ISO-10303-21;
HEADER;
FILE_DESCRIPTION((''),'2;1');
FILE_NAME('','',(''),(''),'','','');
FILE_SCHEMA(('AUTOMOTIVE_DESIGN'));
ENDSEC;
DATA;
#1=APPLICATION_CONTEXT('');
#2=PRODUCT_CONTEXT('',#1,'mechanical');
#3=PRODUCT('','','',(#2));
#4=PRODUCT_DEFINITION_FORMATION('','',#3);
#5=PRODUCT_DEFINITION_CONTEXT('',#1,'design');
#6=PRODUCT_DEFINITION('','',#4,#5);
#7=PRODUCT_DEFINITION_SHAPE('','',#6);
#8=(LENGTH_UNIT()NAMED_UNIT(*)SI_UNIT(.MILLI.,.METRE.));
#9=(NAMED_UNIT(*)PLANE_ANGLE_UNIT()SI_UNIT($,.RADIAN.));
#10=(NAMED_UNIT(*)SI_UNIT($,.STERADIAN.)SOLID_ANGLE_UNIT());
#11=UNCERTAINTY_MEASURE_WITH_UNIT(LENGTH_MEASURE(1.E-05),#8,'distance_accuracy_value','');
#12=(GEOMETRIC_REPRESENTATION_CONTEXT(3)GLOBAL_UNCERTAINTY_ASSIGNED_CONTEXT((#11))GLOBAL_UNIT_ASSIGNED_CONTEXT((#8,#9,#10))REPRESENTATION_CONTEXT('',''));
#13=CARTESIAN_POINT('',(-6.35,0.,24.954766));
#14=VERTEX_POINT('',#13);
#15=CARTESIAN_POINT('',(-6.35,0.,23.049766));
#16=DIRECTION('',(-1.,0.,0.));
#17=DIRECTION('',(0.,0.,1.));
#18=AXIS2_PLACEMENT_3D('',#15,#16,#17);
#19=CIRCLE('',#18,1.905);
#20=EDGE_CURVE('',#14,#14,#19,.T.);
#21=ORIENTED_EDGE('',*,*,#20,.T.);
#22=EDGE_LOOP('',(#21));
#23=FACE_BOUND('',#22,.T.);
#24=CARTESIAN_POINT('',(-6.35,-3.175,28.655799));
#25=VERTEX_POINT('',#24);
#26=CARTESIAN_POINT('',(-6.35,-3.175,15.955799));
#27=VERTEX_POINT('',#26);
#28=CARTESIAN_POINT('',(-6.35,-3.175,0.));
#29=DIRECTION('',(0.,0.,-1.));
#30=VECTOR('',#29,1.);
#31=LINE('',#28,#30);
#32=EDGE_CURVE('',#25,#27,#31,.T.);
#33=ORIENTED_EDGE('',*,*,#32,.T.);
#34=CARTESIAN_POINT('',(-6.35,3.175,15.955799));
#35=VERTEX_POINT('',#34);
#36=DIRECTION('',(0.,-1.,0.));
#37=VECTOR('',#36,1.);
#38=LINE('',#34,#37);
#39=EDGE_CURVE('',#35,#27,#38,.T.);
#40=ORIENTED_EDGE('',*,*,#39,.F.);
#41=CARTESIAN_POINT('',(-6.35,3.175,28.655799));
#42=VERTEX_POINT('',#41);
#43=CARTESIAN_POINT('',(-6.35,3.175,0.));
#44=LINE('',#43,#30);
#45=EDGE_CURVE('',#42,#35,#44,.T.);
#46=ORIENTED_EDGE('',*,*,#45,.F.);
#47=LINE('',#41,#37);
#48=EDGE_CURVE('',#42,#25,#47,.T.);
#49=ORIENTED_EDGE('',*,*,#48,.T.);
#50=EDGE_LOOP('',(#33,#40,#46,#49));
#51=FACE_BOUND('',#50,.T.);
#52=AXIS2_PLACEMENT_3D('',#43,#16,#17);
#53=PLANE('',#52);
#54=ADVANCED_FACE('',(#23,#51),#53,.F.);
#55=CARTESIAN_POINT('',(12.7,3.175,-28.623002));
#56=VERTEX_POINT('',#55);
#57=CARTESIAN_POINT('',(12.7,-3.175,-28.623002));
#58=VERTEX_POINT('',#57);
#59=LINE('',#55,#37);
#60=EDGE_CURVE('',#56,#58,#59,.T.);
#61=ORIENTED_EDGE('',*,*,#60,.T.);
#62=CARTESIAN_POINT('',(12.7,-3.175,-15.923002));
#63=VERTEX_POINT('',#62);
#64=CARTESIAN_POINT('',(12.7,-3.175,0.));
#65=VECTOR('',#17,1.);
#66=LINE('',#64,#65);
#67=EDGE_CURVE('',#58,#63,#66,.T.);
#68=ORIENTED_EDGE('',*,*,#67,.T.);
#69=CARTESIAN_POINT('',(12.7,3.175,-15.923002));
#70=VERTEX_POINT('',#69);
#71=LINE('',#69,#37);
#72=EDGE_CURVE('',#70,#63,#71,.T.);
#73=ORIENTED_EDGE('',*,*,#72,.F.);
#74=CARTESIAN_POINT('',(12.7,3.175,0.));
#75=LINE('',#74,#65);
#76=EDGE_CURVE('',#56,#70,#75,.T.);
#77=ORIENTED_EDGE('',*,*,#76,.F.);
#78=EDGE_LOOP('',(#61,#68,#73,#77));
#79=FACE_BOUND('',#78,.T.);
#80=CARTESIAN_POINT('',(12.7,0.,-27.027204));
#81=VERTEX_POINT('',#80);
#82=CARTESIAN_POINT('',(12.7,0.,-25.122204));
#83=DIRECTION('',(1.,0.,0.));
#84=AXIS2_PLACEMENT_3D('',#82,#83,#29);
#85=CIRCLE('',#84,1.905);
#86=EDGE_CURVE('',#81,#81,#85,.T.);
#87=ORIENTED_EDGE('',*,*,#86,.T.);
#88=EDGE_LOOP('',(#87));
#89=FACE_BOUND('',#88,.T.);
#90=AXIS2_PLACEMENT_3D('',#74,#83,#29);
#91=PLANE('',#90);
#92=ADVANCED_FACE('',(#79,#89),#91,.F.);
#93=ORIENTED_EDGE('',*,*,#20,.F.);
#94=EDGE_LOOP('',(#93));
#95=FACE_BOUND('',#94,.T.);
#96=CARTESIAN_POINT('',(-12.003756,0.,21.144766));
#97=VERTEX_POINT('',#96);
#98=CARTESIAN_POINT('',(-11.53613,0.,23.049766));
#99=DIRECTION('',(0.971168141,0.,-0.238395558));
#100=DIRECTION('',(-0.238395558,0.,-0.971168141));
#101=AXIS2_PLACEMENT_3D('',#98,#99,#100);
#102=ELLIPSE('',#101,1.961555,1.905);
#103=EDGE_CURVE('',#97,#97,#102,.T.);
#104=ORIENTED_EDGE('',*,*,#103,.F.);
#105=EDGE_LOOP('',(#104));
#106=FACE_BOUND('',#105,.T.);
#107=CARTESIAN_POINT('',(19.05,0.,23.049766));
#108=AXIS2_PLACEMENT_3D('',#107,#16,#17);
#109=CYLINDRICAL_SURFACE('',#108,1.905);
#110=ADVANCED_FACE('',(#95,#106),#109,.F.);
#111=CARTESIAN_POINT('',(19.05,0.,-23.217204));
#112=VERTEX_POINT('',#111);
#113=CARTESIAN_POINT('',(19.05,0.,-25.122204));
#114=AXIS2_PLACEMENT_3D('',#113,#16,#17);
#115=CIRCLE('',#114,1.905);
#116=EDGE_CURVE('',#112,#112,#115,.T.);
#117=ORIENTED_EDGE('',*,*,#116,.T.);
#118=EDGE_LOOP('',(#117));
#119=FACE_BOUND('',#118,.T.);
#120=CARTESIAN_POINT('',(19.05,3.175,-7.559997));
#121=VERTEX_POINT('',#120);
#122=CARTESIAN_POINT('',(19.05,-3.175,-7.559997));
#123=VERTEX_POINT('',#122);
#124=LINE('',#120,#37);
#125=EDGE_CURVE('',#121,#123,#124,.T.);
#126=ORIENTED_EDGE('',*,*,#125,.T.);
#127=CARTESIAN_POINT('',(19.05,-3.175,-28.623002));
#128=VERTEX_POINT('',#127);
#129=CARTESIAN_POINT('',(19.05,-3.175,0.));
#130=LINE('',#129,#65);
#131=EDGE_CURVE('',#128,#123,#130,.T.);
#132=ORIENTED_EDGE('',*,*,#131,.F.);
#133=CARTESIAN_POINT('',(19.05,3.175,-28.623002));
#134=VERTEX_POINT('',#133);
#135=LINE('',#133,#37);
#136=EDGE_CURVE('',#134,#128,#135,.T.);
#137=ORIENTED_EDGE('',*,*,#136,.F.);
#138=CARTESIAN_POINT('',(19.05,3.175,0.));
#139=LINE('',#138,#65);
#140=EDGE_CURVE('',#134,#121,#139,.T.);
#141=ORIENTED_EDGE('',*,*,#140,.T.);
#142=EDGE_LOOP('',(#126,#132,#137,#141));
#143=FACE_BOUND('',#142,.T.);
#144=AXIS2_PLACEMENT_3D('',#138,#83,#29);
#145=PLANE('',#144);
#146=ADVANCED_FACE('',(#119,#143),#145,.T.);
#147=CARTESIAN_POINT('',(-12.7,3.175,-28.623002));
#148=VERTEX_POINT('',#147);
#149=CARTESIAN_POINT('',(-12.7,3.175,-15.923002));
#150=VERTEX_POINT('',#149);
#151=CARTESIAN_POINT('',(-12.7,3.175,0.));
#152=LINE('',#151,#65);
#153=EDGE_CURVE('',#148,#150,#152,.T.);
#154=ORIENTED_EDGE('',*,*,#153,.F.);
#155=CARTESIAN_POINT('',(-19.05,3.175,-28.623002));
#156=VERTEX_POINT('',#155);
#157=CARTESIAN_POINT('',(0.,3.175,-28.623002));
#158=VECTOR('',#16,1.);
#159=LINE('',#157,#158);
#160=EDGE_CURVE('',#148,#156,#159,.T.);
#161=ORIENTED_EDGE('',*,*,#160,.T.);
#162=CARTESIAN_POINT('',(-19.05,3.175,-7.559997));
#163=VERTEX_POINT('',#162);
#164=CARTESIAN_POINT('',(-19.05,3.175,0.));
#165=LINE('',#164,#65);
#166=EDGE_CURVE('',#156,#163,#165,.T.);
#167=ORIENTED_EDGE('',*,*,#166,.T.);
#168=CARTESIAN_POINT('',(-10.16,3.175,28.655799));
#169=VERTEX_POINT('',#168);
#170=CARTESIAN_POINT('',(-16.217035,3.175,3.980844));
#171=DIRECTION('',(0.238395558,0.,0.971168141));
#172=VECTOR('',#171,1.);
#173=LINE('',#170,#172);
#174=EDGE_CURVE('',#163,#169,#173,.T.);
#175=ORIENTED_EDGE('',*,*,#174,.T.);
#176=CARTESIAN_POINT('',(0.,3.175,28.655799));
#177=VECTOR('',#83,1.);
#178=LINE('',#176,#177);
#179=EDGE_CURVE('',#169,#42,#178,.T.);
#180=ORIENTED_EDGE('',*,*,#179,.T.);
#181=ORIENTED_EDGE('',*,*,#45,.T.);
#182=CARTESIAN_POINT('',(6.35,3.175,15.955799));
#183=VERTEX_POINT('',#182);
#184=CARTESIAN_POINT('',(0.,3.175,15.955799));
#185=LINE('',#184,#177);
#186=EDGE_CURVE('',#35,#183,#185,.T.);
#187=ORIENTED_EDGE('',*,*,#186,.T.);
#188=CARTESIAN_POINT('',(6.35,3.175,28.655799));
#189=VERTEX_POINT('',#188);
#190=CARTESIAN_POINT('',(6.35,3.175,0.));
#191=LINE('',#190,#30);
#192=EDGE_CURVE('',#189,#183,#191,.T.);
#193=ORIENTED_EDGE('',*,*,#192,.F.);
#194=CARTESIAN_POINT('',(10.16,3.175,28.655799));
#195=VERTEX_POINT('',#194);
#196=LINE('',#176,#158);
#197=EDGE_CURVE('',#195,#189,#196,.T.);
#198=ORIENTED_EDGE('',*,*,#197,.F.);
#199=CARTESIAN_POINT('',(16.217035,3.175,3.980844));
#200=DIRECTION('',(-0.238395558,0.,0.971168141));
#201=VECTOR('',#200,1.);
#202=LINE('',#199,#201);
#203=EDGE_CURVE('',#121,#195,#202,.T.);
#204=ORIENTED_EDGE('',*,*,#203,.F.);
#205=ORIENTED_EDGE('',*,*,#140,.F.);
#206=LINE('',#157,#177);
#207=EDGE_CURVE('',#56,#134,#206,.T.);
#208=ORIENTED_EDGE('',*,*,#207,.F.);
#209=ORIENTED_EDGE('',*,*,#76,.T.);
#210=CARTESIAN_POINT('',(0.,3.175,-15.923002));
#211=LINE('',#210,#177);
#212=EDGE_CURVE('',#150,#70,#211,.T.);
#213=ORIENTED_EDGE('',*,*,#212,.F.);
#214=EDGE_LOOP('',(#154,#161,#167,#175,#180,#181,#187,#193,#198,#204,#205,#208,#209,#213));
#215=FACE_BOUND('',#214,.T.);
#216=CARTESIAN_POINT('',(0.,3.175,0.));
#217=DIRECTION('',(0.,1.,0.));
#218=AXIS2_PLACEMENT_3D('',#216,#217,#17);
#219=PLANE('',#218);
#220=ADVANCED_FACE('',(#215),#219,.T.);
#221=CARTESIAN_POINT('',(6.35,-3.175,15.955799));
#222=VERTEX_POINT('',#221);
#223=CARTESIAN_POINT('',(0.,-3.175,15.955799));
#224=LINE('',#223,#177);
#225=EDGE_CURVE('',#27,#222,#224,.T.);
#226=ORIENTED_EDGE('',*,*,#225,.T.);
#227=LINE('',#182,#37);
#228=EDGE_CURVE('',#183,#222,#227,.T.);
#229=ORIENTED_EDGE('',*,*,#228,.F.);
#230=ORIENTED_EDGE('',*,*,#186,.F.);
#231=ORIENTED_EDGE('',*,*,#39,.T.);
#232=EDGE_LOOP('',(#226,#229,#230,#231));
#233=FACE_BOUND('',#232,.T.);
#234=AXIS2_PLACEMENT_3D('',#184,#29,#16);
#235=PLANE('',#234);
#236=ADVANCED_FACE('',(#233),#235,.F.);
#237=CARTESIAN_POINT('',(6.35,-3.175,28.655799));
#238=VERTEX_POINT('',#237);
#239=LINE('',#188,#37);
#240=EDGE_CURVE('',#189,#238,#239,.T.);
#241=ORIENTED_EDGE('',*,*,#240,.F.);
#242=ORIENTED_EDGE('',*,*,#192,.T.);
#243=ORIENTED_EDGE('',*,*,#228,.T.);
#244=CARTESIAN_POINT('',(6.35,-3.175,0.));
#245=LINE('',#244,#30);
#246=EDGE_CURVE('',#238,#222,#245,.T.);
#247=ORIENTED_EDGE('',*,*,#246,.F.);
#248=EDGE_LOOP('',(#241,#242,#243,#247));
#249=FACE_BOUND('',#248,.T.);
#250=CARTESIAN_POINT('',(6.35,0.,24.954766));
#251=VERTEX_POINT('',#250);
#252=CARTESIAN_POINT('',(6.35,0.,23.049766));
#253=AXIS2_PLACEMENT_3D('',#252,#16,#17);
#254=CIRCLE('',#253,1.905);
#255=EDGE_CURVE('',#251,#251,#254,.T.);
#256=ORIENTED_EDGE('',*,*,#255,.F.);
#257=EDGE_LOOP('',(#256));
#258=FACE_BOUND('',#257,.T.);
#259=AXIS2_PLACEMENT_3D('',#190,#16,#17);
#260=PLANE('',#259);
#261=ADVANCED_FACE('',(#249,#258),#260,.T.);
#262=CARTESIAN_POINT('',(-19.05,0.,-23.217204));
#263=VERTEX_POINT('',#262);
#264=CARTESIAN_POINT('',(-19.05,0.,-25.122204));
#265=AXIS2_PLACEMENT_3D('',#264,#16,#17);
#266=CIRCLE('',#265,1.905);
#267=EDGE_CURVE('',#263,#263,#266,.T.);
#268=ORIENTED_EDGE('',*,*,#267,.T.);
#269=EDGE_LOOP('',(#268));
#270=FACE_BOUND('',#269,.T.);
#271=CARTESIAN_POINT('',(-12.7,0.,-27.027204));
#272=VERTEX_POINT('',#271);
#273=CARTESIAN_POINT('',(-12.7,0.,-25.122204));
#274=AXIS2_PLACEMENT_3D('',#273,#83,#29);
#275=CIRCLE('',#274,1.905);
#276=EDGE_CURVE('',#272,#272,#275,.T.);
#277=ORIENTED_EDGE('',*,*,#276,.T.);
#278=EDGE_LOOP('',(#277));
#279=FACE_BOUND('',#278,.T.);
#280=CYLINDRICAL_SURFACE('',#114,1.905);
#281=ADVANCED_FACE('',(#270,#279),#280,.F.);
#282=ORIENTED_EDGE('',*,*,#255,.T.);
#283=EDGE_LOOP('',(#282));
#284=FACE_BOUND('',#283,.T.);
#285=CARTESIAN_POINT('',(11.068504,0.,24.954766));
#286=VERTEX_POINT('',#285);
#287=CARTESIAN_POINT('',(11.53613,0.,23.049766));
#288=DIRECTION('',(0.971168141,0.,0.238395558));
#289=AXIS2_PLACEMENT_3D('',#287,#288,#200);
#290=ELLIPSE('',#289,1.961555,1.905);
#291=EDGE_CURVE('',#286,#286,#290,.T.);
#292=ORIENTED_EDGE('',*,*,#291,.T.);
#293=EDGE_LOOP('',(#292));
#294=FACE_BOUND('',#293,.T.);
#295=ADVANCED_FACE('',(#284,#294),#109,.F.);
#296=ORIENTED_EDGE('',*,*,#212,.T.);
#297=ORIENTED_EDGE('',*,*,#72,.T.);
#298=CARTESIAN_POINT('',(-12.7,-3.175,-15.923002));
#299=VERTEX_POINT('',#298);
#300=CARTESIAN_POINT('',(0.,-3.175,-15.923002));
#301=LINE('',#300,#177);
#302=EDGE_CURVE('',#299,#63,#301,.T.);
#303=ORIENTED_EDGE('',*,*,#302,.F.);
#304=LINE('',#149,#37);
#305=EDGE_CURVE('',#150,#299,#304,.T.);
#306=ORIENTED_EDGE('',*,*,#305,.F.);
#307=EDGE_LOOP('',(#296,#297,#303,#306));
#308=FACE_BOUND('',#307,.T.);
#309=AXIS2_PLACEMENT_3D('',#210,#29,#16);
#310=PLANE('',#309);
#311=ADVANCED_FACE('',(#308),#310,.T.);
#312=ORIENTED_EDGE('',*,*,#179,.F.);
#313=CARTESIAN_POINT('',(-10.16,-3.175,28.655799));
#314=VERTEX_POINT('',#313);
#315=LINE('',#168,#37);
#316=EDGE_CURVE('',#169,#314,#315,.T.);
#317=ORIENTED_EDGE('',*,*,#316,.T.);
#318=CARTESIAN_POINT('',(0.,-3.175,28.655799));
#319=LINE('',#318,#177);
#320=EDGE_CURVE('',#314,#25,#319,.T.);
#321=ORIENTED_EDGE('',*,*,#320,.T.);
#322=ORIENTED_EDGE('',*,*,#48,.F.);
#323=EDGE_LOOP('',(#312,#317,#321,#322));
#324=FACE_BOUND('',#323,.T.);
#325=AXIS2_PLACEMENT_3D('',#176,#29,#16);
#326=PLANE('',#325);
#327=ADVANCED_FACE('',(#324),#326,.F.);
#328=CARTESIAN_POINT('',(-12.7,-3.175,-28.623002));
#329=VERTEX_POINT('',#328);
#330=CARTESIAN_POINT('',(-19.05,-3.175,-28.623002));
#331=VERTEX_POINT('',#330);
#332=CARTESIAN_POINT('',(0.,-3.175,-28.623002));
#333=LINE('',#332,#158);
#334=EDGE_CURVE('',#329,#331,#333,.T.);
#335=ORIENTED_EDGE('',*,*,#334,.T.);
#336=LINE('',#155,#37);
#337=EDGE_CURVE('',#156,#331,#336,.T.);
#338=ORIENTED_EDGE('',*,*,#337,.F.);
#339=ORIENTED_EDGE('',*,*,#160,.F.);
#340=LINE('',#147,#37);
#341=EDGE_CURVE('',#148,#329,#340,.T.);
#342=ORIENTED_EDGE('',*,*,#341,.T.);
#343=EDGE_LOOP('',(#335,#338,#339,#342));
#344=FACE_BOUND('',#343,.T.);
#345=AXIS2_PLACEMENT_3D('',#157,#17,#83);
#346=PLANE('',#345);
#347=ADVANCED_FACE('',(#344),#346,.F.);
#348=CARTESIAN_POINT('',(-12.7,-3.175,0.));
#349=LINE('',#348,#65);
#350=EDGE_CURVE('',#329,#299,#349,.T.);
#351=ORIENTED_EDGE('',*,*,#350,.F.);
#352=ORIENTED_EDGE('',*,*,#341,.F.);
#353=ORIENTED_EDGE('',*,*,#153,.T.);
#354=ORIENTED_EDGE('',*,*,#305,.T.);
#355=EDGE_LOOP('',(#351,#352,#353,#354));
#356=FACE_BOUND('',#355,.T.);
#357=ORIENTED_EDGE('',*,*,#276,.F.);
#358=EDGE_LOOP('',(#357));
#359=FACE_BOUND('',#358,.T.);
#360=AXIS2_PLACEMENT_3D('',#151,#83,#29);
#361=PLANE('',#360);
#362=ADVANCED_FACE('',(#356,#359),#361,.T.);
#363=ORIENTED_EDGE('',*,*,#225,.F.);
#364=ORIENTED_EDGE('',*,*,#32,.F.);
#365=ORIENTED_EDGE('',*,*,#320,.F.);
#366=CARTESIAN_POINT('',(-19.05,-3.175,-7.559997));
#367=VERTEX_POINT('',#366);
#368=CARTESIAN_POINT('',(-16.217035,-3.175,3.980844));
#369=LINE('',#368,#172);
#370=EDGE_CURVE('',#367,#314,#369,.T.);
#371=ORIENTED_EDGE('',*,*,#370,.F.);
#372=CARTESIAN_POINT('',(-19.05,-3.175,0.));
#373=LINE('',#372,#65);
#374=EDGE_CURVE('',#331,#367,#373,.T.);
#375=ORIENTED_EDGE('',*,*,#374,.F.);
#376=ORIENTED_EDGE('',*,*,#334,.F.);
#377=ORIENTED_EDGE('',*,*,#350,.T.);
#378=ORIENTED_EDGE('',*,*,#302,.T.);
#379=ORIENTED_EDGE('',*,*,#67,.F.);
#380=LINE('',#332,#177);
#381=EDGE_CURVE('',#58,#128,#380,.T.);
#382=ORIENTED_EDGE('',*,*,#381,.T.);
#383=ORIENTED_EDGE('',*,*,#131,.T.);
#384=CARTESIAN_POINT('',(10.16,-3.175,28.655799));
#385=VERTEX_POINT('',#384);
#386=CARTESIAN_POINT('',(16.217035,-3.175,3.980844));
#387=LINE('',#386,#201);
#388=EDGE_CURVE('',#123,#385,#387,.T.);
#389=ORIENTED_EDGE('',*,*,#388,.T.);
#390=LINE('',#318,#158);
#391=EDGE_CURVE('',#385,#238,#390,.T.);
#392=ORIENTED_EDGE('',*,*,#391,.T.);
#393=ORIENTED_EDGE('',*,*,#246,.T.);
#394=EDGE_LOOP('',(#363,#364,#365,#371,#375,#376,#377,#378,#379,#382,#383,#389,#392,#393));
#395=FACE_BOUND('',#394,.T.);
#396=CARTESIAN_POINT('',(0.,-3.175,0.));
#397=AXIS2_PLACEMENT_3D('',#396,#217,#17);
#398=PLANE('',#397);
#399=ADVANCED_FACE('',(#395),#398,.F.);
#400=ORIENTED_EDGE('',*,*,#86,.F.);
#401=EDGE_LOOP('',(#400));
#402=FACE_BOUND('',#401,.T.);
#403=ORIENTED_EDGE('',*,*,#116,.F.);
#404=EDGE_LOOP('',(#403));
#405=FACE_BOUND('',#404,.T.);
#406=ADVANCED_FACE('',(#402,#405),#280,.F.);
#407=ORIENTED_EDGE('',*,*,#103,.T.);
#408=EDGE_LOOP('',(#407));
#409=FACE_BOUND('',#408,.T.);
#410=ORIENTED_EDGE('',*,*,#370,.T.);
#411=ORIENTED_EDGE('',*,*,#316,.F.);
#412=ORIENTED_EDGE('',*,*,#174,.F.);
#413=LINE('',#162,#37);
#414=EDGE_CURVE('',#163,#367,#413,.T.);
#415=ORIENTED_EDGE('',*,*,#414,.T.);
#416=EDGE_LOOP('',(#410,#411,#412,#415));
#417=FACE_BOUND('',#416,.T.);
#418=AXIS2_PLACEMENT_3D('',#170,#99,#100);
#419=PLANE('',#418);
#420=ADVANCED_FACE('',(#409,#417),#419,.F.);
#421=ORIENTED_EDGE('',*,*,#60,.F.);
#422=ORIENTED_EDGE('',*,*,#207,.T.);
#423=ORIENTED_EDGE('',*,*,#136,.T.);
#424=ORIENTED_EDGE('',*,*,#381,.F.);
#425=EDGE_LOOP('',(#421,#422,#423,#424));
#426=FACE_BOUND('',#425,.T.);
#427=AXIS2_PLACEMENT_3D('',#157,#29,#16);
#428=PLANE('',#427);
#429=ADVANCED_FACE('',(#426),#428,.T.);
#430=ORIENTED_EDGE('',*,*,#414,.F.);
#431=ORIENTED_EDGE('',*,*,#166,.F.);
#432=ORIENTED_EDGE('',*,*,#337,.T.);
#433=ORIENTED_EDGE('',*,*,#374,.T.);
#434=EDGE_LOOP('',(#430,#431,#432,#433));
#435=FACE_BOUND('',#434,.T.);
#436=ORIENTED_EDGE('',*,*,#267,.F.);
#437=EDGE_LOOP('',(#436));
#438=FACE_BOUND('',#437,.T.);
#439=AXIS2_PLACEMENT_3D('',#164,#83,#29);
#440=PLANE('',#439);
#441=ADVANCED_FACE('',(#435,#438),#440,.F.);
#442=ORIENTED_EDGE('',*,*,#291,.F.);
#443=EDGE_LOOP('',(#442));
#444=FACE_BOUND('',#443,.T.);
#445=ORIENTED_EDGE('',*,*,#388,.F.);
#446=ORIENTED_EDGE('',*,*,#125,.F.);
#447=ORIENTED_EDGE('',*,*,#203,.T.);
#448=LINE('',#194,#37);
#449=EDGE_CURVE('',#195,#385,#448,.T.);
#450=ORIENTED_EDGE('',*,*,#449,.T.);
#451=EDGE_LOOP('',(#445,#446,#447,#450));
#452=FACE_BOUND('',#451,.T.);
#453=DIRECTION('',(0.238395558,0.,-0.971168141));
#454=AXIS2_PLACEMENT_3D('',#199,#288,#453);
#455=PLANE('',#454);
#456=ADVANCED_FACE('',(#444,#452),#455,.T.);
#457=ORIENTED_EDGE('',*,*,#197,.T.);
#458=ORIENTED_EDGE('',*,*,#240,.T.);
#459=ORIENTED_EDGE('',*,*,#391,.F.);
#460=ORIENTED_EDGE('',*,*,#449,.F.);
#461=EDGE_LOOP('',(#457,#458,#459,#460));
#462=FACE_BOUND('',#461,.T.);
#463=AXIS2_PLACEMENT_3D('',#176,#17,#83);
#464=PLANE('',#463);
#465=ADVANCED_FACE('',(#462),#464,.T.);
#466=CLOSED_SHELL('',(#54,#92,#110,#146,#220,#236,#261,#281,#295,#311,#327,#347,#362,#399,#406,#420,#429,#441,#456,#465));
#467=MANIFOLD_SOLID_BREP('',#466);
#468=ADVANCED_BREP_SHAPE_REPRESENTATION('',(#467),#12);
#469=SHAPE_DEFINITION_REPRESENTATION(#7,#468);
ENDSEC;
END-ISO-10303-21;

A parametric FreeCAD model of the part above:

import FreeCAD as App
import Part
import Sketcher
Q = App.Units.Quantity


def add_polygon(sketch, points):
    """Adds a closed chain of lines whose ends are joined by coincident constraints."""
    first, n = sketch.GeometryCount, len(points)
    for a, b in zip(points, points[1:] + points[:1]):
        sketch.addGeometry(Part.LineSegment(App.Vector(*a, 0), App.Vector(*b, 0)), False)
    for i in range(n):
        sketch.addConstraint(Sketcher.Constraint("Coincident", first + i, 2, first + (i + 1) % n, 1))

doc = App.newDocument("Part")
body = doc.addObject("PartDesign::Body", "Body")

sketch1 = body.newObject("Sketcher::SketchObject", "Sketch")
sketch1.AttachmentSupport = (doc.getObject("XZ_Plane"), [""])
sketch1.MapMode = "FlatFace"
add_polygon(sketch1, [(-19.1, -28.6), (-19.1, -7.6), (-10.2, 28.7), (-6.3, 28.7), (-6.3, 16), (6.3, 16), (6.3, 28.7), (10.2, 28.7), (19.1, -7.6), (19.1, -28.6), (12.7, -28.6), (12.7, -15.9), (-12.7, -15.9), (-12.7, -28.6)])
sketch1.addConstraint(Sketcher.Constraint("Vertical", 0))
sketch1.addConstraint(Sketcher.Constraint("Horizontal", 2))
sketch1.addConstraint(Sketcher.Constraint("Vertical", 3))
sketch1.addConstraint(Sketcher.Constraint("Horizontal", 4))
sketch1.addConstraint(Sketcher.Constraint("Vertical", 5))
sketch1.addConstraint(Sketcher.Constraint("Horizontal", 6))
sketch1.addConstraint(Sketcher.Constraint("Vertical", 8))
sketch1.addConstraint(Sketcher.Constraint("Horizontal", 9))
sketch1.addConstraint(Sketcher.Constraint("Vertical", 10))
sketch1.addConstraint(Sketcher.Constraint("Horizontal", 11))
sketch1.addConstraint(Sketcher.Constraint("Vertical", 12))
sketch1.addConstraint(Sketcher.Constraint("Horizontal", 13))
sketch1.addConstraint(Sketcher.Constraint("Symmetric", 2, 2, 5, 2, -2))
sketch1.addConstraint(Sketcher.Constraint("Symmetric", 0, 2, 7, 2, -2))
sketch1.addConstraint(Sketcher.Constraint("Symmetric", 9, 2, 12, 2, -2))
sketch1.addConstraint(Sketcher.Constraint("Equal", 2, 6))
sketch1.addConstraint(Sketcher.Constraint("Equal", 4, 3))
sketch1.addConstraint(Sketcher.Constraint("Equal", 5, 10))
sketch1.addConstraint(Sketcher.Constraint("DistanceX", 11, 2, 11, 1, Q("1 in")))
sketch1.addConstraint(Sketcher.Constraint("DistanceX", 4, 1, 4, 2, Q("0.5 in")))
sketch1.addConstraint(Sketcher.Constraint("DistanceX", 0, 2, 4, 2, Q("1 in")))
sketch1.addConstraint(Sketcher.Constraint("DistanceX", 2, 1, 2, 2, Q("0.15 in")))
sketch1.addConstraint(Sketcher.Constraint("DistanceY", -1, 1, 1, 2, 28.655799))
sketch1.addConstraint(Sketcher.Constraint("DistanceY", 8, 2, 4, 2, 44.578801))
sketch1.addConstraint(Sketcher.Constraint("DistanceY", 0, 1, 0, 2, 21.063005))
pad1 = body.newObject("PartDesign::Pad", "Pad")
pad1.Profile = sketch1
pad1.Length = Q("0.25 in")
pad1.Midplane = True

sketch2 = body.newObject("Sketcher::SketchObject", "Sketch001")
sketch2.AttachmentSupport = (doc.getObject("YZ_Plane"), [""])
sketch2.MapMode = "FlatFace"
sketch2.addGeometry(Part.Circle(App.Vector(0, -25.1, 0), App.Vector(0, 0, 1), 1.9), False)
sketch2.addGeometry(Part.Circle(App.Vector(0, 23, 0), App.Vector(0, 0, 1), 1.9), False)
sketch2.addConstraint(Sketcher.Constraint("Equal", 0, 1))
sketch2.addConstraint(Sketcher.Constraint("PointOnObject", 0, 3, -2))
sketch2.addConstraint(Sketcher.Constraint("PointOnObject", 1, 3, -2))
sketch2.addConstraint(Sketcher.Constraint("Diameter", 0, Q("0.15 in")))
sketch2.addConstraint(Sketcher.Constraint("DistanceY", 0, 3, 1, 3, 48.17197))
sketch2.addConstraint(Sketcher.Constraint("DistanceY", 0, 3, -1, 1, 25.122204))
pocket1 = body.newObject("PartDesign::Pocket", "Pocket")
pocket1.Profile = sketch2
pocket1.Type = "ThroughAll"
pocket1.Midplane = True

doc.recompute()
